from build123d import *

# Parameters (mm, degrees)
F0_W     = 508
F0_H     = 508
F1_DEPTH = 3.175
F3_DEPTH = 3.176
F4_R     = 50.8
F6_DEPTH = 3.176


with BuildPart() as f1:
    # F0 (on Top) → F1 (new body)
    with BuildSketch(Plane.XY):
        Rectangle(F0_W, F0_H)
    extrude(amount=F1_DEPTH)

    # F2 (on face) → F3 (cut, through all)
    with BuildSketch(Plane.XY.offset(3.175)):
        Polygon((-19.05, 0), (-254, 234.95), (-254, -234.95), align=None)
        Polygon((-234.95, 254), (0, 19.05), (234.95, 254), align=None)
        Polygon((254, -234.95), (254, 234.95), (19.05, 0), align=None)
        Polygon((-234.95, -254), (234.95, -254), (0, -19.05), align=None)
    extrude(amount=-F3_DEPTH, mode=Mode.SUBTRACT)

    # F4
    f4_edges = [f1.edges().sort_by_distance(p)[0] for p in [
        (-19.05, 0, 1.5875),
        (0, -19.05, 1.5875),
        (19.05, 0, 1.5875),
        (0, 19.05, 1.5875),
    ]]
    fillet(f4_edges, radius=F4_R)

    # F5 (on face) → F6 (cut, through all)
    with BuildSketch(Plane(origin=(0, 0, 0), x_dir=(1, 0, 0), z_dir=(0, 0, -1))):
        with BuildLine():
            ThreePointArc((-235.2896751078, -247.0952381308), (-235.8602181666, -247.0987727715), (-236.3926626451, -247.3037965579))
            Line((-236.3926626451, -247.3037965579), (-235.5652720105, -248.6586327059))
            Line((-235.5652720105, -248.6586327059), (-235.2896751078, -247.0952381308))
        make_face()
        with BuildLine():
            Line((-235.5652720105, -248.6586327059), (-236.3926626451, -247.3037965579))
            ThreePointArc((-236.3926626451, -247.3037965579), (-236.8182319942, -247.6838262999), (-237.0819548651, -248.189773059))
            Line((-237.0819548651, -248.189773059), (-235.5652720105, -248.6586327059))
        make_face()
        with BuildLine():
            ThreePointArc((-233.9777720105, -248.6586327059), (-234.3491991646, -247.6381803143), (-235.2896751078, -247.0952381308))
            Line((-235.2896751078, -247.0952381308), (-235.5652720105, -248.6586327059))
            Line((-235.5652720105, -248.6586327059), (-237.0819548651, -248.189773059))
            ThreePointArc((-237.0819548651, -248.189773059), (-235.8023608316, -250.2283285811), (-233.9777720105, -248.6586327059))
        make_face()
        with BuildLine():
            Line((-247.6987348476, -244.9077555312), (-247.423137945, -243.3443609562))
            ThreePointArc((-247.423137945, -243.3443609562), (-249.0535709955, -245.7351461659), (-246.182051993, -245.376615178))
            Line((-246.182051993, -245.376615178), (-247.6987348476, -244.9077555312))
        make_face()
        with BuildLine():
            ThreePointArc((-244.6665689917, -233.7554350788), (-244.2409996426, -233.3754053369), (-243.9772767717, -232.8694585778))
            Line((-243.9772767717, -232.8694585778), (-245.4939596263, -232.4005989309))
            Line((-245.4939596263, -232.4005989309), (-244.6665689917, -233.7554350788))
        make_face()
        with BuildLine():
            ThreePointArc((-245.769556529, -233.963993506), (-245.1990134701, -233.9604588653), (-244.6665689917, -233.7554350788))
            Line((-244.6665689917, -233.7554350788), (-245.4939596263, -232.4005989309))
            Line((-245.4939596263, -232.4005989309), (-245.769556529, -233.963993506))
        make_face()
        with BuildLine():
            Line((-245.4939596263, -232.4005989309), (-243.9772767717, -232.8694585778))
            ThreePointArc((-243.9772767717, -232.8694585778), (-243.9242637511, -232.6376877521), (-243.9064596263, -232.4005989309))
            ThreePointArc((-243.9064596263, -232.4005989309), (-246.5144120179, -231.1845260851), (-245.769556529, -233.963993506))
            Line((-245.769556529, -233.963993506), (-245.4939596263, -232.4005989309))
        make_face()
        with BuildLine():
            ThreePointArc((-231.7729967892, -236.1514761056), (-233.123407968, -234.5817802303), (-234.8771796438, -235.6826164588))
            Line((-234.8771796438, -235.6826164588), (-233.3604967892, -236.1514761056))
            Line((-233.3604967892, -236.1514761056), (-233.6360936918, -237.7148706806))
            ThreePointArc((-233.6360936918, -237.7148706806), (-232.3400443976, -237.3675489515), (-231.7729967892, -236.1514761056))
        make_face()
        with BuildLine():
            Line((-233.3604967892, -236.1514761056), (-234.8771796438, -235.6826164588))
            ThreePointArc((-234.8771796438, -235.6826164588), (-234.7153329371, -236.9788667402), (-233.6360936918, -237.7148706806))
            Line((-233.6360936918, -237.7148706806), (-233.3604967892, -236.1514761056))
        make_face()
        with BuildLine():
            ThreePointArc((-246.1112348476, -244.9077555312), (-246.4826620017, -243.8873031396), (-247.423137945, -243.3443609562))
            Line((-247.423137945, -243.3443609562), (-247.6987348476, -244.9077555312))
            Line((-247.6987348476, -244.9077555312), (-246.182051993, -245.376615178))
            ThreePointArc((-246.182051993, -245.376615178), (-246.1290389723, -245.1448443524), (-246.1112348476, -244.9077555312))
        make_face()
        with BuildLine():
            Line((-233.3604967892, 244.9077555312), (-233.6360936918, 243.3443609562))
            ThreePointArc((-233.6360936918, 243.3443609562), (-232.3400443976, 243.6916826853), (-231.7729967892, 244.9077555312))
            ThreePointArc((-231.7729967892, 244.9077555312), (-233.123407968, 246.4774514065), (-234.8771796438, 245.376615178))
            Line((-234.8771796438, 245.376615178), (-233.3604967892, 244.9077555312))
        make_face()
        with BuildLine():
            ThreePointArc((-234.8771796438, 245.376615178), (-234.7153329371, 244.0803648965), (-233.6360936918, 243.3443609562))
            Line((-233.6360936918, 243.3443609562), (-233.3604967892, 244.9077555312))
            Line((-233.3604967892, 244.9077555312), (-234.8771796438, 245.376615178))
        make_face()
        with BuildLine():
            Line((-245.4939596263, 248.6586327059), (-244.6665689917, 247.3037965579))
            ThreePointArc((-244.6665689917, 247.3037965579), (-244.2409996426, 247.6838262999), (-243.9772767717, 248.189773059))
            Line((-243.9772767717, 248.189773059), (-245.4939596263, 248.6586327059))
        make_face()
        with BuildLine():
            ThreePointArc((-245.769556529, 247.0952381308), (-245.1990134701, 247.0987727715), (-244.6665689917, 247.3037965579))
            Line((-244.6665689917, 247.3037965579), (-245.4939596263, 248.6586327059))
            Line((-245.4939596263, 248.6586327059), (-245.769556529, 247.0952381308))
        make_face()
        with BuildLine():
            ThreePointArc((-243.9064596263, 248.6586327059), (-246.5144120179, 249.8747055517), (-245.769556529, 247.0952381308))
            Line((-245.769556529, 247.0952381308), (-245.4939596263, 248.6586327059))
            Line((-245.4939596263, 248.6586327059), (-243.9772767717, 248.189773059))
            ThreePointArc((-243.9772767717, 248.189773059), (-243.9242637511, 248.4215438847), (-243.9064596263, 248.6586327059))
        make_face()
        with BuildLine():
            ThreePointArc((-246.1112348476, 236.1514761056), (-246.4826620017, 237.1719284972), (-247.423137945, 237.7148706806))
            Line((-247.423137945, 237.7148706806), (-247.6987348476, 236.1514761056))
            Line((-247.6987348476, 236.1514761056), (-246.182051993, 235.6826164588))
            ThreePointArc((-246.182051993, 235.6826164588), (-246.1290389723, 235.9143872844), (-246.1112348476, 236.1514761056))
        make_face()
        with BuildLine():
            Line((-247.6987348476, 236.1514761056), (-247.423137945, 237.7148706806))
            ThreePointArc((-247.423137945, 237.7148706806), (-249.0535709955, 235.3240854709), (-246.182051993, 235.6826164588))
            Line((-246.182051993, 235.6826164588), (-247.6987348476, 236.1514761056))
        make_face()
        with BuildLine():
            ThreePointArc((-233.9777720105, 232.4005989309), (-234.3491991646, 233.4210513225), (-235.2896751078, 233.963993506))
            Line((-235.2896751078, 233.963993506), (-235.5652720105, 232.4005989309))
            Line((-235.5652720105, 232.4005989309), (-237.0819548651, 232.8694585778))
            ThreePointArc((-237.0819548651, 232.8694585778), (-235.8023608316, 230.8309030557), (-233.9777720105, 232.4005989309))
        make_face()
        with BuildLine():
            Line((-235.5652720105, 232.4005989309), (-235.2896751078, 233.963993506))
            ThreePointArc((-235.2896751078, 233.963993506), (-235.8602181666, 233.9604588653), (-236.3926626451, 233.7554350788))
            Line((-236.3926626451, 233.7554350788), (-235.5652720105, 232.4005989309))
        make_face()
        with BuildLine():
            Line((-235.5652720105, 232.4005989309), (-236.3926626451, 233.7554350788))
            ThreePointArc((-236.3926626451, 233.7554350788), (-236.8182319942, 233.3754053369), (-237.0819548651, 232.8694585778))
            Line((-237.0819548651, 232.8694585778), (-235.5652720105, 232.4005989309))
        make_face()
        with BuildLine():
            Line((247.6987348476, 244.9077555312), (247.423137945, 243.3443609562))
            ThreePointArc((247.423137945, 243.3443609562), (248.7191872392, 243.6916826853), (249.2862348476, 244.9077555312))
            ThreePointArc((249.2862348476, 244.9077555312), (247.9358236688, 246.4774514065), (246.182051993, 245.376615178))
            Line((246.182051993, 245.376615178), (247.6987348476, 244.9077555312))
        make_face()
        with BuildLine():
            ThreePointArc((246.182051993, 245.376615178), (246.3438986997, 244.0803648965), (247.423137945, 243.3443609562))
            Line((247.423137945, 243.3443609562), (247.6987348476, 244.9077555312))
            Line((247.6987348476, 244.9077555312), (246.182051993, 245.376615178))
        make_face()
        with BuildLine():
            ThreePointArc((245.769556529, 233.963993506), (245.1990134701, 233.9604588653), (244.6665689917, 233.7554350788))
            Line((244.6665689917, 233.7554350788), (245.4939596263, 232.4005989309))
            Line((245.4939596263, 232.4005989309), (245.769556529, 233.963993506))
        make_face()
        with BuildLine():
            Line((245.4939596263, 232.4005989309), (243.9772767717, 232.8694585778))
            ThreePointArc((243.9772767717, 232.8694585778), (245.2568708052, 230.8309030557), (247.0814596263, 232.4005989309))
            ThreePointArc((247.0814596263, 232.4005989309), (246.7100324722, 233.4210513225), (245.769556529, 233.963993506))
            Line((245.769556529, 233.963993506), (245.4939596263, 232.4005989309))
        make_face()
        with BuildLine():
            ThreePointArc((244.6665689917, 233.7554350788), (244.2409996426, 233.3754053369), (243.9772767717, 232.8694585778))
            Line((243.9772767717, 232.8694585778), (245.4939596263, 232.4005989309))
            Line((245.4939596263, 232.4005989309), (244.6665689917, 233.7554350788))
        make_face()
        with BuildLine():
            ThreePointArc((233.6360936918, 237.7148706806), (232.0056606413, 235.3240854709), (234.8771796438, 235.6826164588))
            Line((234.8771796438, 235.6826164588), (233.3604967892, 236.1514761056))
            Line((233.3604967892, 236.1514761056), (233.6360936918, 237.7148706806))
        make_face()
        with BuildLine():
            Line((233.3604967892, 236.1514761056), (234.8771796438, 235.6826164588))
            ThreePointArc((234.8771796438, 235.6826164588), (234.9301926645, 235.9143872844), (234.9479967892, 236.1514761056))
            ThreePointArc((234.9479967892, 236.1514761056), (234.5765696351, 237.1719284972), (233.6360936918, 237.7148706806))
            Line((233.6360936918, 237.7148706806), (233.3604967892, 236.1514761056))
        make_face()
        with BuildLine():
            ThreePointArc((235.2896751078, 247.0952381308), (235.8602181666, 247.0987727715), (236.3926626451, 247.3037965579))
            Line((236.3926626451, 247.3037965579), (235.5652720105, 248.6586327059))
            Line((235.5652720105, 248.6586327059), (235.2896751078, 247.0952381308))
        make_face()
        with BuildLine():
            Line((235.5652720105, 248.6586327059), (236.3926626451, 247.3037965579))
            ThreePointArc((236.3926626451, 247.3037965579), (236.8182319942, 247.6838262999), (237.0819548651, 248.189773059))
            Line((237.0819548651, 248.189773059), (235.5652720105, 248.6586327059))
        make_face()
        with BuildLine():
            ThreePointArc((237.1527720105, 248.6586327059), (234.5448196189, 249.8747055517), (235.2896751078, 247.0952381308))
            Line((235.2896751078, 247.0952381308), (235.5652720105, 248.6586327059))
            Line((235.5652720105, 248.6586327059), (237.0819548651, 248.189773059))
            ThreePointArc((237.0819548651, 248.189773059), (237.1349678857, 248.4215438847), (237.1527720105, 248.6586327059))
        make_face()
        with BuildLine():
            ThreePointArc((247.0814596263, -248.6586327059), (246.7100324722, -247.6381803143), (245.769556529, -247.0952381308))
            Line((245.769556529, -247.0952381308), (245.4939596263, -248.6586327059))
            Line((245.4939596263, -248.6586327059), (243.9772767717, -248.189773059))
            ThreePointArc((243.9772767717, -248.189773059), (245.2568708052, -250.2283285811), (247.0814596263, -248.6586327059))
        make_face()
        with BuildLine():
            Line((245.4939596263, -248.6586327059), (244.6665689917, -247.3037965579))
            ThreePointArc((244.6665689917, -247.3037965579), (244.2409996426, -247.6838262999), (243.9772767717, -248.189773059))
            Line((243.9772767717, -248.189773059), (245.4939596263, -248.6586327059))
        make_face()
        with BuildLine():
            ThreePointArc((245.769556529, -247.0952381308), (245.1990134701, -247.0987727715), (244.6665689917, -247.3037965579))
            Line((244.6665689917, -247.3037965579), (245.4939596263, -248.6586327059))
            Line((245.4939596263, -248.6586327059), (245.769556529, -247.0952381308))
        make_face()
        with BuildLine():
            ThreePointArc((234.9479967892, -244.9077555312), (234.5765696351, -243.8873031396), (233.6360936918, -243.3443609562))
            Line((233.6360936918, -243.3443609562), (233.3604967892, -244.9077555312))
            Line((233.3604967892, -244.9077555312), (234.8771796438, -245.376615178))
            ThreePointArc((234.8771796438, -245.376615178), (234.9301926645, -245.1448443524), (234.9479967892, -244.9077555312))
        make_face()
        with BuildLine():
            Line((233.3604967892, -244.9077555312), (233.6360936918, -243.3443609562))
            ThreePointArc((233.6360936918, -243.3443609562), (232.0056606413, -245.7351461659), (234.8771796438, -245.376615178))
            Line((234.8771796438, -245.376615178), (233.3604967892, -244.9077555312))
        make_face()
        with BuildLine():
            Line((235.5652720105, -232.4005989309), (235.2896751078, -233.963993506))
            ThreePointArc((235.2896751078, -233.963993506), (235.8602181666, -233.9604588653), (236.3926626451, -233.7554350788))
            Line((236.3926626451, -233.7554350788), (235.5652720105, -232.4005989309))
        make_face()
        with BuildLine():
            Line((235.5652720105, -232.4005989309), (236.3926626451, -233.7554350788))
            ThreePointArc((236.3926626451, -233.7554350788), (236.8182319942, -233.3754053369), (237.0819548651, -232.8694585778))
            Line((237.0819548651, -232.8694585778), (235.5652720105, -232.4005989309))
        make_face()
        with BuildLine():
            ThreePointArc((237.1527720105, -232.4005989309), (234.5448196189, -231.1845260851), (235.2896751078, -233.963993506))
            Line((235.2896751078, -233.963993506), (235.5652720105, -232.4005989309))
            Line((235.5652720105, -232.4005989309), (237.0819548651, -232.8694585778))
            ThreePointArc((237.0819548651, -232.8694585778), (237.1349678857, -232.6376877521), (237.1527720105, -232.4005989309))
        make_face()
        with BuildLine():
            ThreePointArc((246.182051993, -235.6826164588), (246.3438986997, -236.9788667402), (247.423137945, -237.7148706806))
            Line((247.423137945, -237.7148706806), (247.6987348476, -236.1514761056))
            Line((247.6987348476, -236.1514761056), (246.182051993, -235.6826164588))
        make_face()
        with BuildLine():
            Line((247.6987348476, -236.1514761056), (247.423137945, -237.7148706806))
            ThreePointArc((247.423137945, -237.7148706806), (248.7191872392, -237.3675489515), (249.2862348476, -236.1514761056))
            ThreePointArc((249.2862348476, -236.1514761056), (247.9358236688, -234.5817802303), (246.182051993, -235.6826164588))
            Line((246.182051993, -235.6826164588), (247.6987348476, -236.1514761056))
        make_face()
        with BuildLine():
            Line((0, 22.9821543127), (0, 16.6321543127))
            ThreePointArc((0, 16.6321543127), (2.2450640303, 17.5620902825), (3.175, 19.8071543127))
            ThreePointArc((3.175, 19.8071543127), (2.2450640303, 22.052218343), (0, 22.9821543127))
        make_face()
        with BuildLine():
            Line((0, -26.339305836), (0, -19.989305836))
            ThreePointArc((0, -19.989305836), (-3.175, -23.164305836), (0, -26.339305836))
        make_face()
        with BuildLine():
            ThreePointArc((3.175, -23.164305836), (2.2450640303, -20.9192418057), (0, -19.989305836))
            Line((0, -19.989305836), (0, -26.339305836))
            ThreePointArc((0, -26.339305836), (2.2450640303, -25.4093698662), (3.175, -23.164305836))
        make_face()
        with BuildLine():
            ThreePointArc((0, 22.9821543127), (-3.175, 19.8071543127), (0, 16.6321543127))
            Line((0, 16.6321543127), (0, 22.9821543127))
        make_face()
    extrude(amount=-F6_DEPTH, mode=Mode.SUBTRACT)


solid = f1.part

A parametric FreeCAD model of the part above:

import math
import FreeCAD as App
import Part
import Sketcher
from FreeCAD import Vector
Q = App.Units.Quantity


def edges_at(feature, points):
    """Names of the edges that pass closest to the given points."""
    edges = feature.Shape.Edges
    near = lambda p: min(range(len(edges)), key=lambda i: edges[i].distToShape(Part.Vertex(*p))[0])
    return sorted({f"Edge{near(p) + 1}" for p in points})


def add_polygon(sketch, points):
    """Adds a closed chain of lines whose ends are joined by coincident constraints."""
    first, n = sketch.GeometryCount, len(points)
    for a, b in zip(points, points[1:] + points[:1]):
        sketch.addGeometry(Part.LineSegment(App.Vector(*a, 0), App.Vector(*b, 0)), False)
    for i in range(n):
        sketch.addConstraint(Sketcher.Constraint("Coincident", first + i, 2, first + (i + 1) % n, 1))

doc = App.newDocument("Part")
body = doc.addObject("PartDesign::Body", "Body")

# Sketch on XY plane
sketch1 = body.newObject("Sketcher::SketchObject", "Sketch")
sketch1.AttachmentSupport = (doc.getObject("XY_Plane"), [""])
sketch1.MapMode = "FlatFace"
add_polygon(sketch1, [(-254, 254), (-254, -254), (254, -254), (254, 254)])  # lines 0-3
sketch1.addConstraint(Sketcher.Constraint("Vertical", 0))
sketch1.addConstraint(Sketcher.Constraint("Horizontal", 1))
sketch1.addConstraint(Sketcher.Constraint("Vertical", 2))
sketch1.addConstraint(Sketcher.Constraint("Horizontal", 3))
sketch1.addConstraint(Sketcher.Constraint("Symmetric", 0, 2, 2, 2, -1, 1))
sketch1.addConstraint(Sketcher.Constraint("Equal", 3, 0))
sketch1.addConstraint(Sketcher.Constraint("DistanceX", 1, 1, 1, 2, Q("20 in")))
pad1 = body.newObject("PartDesign::Pad", "Pad")
pad1.Profile = sketch1
pad1.Length = Q("0.125 in")

# Sketch on XY plane
sketch2 = body.newObject("Sketcher::SketchObject", "Sketch001")
sketch2.AttachmentSupport = (doc.getObject("XY_Plane"), [""])
sketch2.MapMode = "FlatFace"
sketch2.AttachmentOffset = App.Placement(Vector(0, 0, 0.125 * 25.4), App.Rotation())
add_polygon(sketch2, [(-19.05, 0), (-254, 234.95), (-254, -234.95)])  # lines 0-2
add_polygon(sketch2, [(-234.95, 254), (0, 19.05), (234.95, 254)])  # lines 3-5
add_polygon(sketch2, [(254, -234.95), (254, 234.95), (19.05, 0)])  # lines 6-8
add_polygon(sketch2, [(-234.95, -254), (234.95, -254), (0, -19.05)])  # lines 9-11
sketch2.addConstraint(Sketcher.Constraint("Vertical", 1))
sketch2.addConstraint(Sketcher.Constraint("Horizontal", 5))
sketch2.addConstraint(Sketcher.Constraint("Vertical", 6))
sketch2.addConstraint(Sketcher.Constraint("Horizontal", 9))
sketch2.addConstraint(Sketcher.Constraint("Symmetric", 1, 2, 6, 2, -1, 1))
sketch2.addConstraint(Sketcher.Constraint("Symmetric", 2, 2, 7, 2, -1, 1))
sketch2.addConstraint(Sketcher.Constraint("Symmetric", 5, 2, 9, 2, -1, 1))
sketch2.addConstraint(Sketcher.Constraint("Symmetric", 3, 2, 10, 2, -1, 1))
sketch2.addConstraint(Sketcher.Constraint("PointOnObject", 2, 2, -1))
sketch2.addConstraint(Sketcher.Constraint("PointOnObject", 3, 2, -2))
sketch2.addConstraint(Sketcher.Constraint("Perpendicular", 0, 2))
sketch2.addConstraint(Sketcher.Constraint("Perpendicular", 2, 3))
sketch2.addConstraint(Sketcher.Constraint("Perpendicular", 3, 4))
sketch2.addConstraint(Sketcher.Constraint("Perpendicular", 7, 8))
sketch2.addConstraint(Sketcher.Constraint("Perpendicular", 10, 11))
sketch2.addConstraint(Sketcher.Constraint("Horizontal", 0, 2, 6, 2))
sketch2.addConstraint(Sketcher.Constraint("Equal", 9, 1))
sketch2.addConstraint(Sketcher.Constraint("DistanceX", 5, 2, 5, 1, Q("18.5 in")))
sketch2.addConstraint(Sketcher.Constraint("DistanceX", 0, 2, -1, 1, Q("10 in")))
sketch2.addConstraint(Sketcher.Constraint("DistanceY", -1, 1, 4, 2, Q("10 in")))
pocket1 = body.newObject("PartDesign::Pocket", "Pocket")
pocket1.Profile = sketch2
pocket1.Type = "ThroughAll"
doc.recompute()

fillet = body.newObject("PartDesign::Fillet", "Fillet")
fillet.Base = (pocket1, edges_at(pocket1, [
    (-19.05, 0, 1.587),
    (0, -19.05, 1.587),
    (19.05, 0, 1.587),
    (0, 19.05, 1.587),
]))
fillet.Radius = Q("2 in")

# Sketch on XY plane
sketch3 = body.newObject("Sketcher::SketchObject", "Sketch002")
sketch3.AttachmentSupport = (doc.getObject("XY_Plane"), [""])
sketch3.MapMode = "FlatFace"
sketch3.addGeometry(Part.ArcOfCircle(Part.Circle(Vector(-235.565272, 248.658633, 0), Vector(0, 0, 1), 1.5875), math.radians(-121.412172), math.radians(-80.00255)), False)
sketch3.addGeometry(Part.ArcOfCircle(Part.Circle(Vector(-235.565272, 248.658633, 0), Vector(0, 0, 1), 1.5875), math.radians(-162.821794), math.radians(-121.412172)), False)
sketch3.addGeometry(Part.ArcOfCircle(Part.Circle(Vector(-235.565272, 248.658633, 0), Vector(0, 0, 1), 1.5875), math.radians(0), math.radians(197.178206)), False)
sketch3.addGeometry(Part.ArcOfCircle(Part.Circle(Vector(-235.565272, 248.658633, 0), Vector(0, 0, 1), 1.5875), math.radians(-80.00255), math.radians(0)), False)
sketch3.addGeometry(Part.ArcOfCircle(Part.Circle(Vector(-247.698735, 244.907756, 0), Vector(0, 0, 1), 1.5875), math.radians(17.178206), math.radians(279.99745)), False)
sketch3.addGeometry(Part.ArcOfCircle(Part.Circle(Vector(-247.698735, 244.907756, 0), Vector(0, 0, 1), 1.5875), math.radians(0), math.radians(17.178206)), False)
sketch3.addGeometry(Part.ArcOfCircle(Part.Circle(Vector(-247.698735, 244.907756, 0), Vector(0, 0, 1), 1.5875), math.radians(-80.00255), math.radians(0)), False)
sketch3.addGeometry(Part.ArcOfCircle(Part.Circle(Vector(-245.49396, 232.400599, 0), Vector(0, 0, 1), 1.5875), math.radians(17.178206), math.radians(58.587828)), False)
sketch3.addGeometry(Part.ArcOfCircle(Part.Circle(Vector(-245.49396, 232.400599, 0), Vector(0, 0, 1), 1.5875), math.radians(0), math.radians(17.178206)), False)
sketch3.addGeometry(Part.ArcOfCircle(Part.Circle(Vector(-245.49396, 232.400599, 0), Vector(0, 0, 1), 1.5875), math.radians(99.99745), math.radians(360)), False)
sketch3.addGeometry(Part.ArcOfCircle(Part.Circle(Vector(-245.49396, 232.400599, 0), Vector(0, 0, 1), 1.5875), math.radians(58.587828), math.radians(99.99745)), False)
sketch3.addGeometry(Part.ArcOfCircle(Part.Circle(Vector(-233.360497, 236.151476, 0), Vector(0, 0, 1), 1.5875), math.radians(-162.821794), math.radians(0)), False)
sketch3.addGeometry(Part.ArcOfCircle(Part.Circle(Vector(-233.360497, 236.151476, 0), Vector(0, 0, 1), 1.5875), math.radians(99.99745), math.radians(197.178206)), False)
sketch3.addGeometry(Part.ArcOfCircle(Part.Circle(Vector(-233.360497, 236.151476, 0), Vector(0, 0, 1), 1.5875), math.radians(0), math.radians(99.99745)), False)
sketch3.addGeometry(Part.ArcOfCircle(Part.Circle(Vector(-233.360497, -244.907756, 0), Vector(0, 0, 1), 1.5875), math.radians(0), math.radians(99.99745)), False)
sketch3.addGeometry(Part.ArcOfCircle(Part.Circle(Vector(-233.360497, -244.907756, 0), Vector(0, 0, 1), 1.5875), math.radians(-162.821794), math.radians(0)), False)
sketch3.addGeometry(Part.ArcOfCircle(Part.Circle(Vector(-233.360497, -244.907756, 0), Vector(0, 0, 1), 1.5875), math.radians(99.99745), math.radians(197.178206)), False)
sketch3.addGeometry(Part.ArcOfCircle(Part.Circle(Vector(-245.49396, -248.658633, 0), Vector(0, 0, 1), 1.5875), math.radians(17.178206), math.radians(58.587828)), False)
sketch3.addGeometry(Part.ArcOfCircle(Part.Circle(Vector(-245.49396, -248.658633, 0), Vector(0, 0, 1), 1.5875), math.radians(0), math.radians(17.178206)), False)
sketch3.addGeometry(Part.ArcOfCircle(Part.Circle(Vector(-245.49396, -248.658633, 0), Vector(0, 0, 1), 1.5875), math.radians(99.99745), math.radians(360)), False)
sketch3.addGeometry(Part.ArcOfCircle(Part.Circle(Vector(-245.49396, -248.658633, 0), Vector(0, 0, 1), 1.5875), math.radians(58.587828), math.radians(99.99745)), False)
sketch3.addGeometry(Part.ArcOfCircle(Part.Circle(Vector(-247.698735, -236.151476, 0), Vector(0, 0, 1), 1.5875), math.radians(-80.00255), math.radians(0)), False)
sketch3.addGeometry(Part.ArcOfCircle(Part.Circle(Vector(-247.698735, -236.151476, 0), Vector(0, 0, 1), 1.5875), math.radians(17.178206), math.radians(279.99745)), False)
sketch3.addGeometry(Part.ArcOfCircle(Part.Circle(Vector(-247.698735, -236.151476, 0), Vector(0, 0, 1), 1.5875), math.radians(0), math.radians(17.178206)), False)
sketch3.addGeometry(Part.ArcOfCircle(Part.Circle(Vector(-235.565272, -232.400599, 0), Vector(0, 0, 1), 1.5875), math.radians(-80.00255), math.radians(0)), False)
sketch3.addGeometry(Part.ArcOfCircle(Part.Circle(Vector(-235.565272, -232.400599, 0), Vector(0, 0, 1), 1.5875), math.radians(-121.412172), math.radians(-80.00255)), False)
sketch3.addGeometry(Part.ArcOfCircle(Part.Circle(Vector(-235.565272, -232.400599, 0), Vector(0, 0, 1), 1.5875), math.radians(-162.821794), math.radians(-121.412172)), False)
sketch3.addGeometry(Part.ArcOfCircle(Part.Circle(Vector(-235.565272, -232.400599, 0), Vector(0, 0, 1), 1.5875), math.radians(0), math.radians(197.178206)), False)
sketch3.addGeometry(Part.ArcOfCircle(Part.Circle(Vector(247.698735, -244.907756, 0), Vector(0, 0, 1), 1.5875), math.radians(0), math.radians(99.99745)), False)
sketch3.addGeometry(Part.ArcOfCircle(Part.Circle(Vector(247.698735, -244.907756, 0), Vector(0, 0, 1), 1.5875), math.radians(-162.821794), math.radians(0)), False)
sketch3.addGeometry(Part.ArcOfCircle(Part.Circle(Vector(247.698735, -244.907756, 0), Vector(0, 0, 1), 1.5875), math.radians(99.99745), math.radians(197.178206)), False)
sketch3.addGeometry(Part.ArcOfCircle(Part.Circle(Vector(245.49396, -232.400599, 0), Vector(0, 0, 1), 1.5875), math.radians(-121.412172), math.radians(-80.00255)), False)
sketch3.addGeometry(Part.ArcOfCircle(Part.Circle(Vector(245.49396, -232.400599, 0), Vector(0, 0, 1), 1.5875), math.radians(-162.821794), math.radians(-121.412172)), False)
sketch3.addGeometry(Part.ArcOfCircle(Part.Circle(Vector(245.49396, -232.400599, 0), Vector(0, 0, 1), 1.5875), math.radians(0), math.radians(197.178206)), False)
sketch3.addGeometry(Part.ArcOfCircle(Part.Circle(Vector(245.49396, -232.400599, 0), Vector(0, 0, 1), 1.5875), math.radians(-80.00255), math.radians(0)), False)
sketch3.addGeometry(Part.ArcOfCircle(Part.Circle(Vector(233.360497, -236.151476, 0), Vector(0, 0, 1), 1.5875), math.radians(17.178206), math.radians(279.99745)), False)
sketch3.addGeometry(Part.ArcOfCircle(Part.Circle(Vector(233.360497, -236.151476, 0), Vector(0, 0, 1), 1.5875), math.radians(0), math.radians(17.178206)), False)
sketch3.addGeometry(Part.ArcOfCircle(Part.Circle(Vector(233.360497, -236.151476, 0), Vector(0, 0, 1), 1.5875), math.radians(-80.00255), math.radians(0)), False)
sketch3.addGeometry(Part.ArcOfCircle(Part.Circle(Vector(235.565272, -248.658633, 0), Vector(0, 0, 1), 1.5875), math.radians(58.587828), math.radians(99.99745)), False)
sketch3.addGeometry(Part.ArcOfCircle(Part.Circle(Vector(235.565272, -248.658633, 0), Vector(0, 0, 1), 1.5875), math.radians(17.178206), math.radians(58.587828)), False)
sketch3.addGeometry(Part.ArcOfCircle(Part.Circle(Vector(235.565272, -248.658633, 0), Vector(0, 0, 1), 1.5875), math.radians(0), math.radians(17.178206)), False)
sketch3.addGeometry(Part.ArcOfCircle(Part.Circle(Vector(235.565272, -248.658633, 0), Vector(0, 0, 1), 1.5875), math.radians(99.99745), math.radians(360)), False)
sketch3.addGeometry(Part.ArcOfCircle(Part.Circle(Vector(245.49396, 248.658633, 0), Vector(0, 0, 1), 1.5875), math.radians(-80.00255), math.radians(0)), False)
sketch3.addGeometry(Part.ArcOfCircle(Part.Circle(Vector(245.49396, 248.658633, 0), Vector(0, 0, 1), 1.5875), math.radians(-121.412172), math.radians(-80.00255)), False)
sketch3.addGeometry(Part.ArcOfCircle(Part.Circle(Vector(245.49396, 248.658633, 0), Vector(0, 0, 1), 1.5875), math.radians(-162.821794), math.radians(-121.412172)), False)
sketch3.addGeometry(Part.ArcOfCircle(Part.Circle(Vector(245.49396, 248.658633, 0), Vector(0, 0, 1), 1.5875), math.radians(0), math.radians(197.178206)), False)
sketch3.addGeometry(Part.ArcOfCircle(Part.Circle(Vector(233.360497, 244.907756, 0), Vector(0, 0, 1), 1.5875), math.radians(-80.00255), math.radians(0)), False)
sketch3.addGeometry(Part.ArcOfCircle(Part.Circle(Vector(233.360497, 244.907756, 0), Vector(0, 0, 1), 1.5875), math.radians(17.178206), math.radians(279.99745)), False)
sketch3.addGeometry(Part.ArcOfCircle(Part.Circle(Vector(233.360497, 244.907756, 0), Vector(0, 0, 1), 1.5875), math.radians(0), math.radians(17.178206)), False)
sketch3.addGeometry(Part.ArcOfCircle(Part.Circle(Vector(235.565272, 232.400599, 0), Vector(0, 0, 1), 1.5875), math.radians(58.587828), math.radians(99.99745)), False)
sketch3.addGeometry(Part.ArcOfCircle(Part.Circle(Vector(235.565272, 232.400599, 0), Vector(0, 0, 1), 1.5875), math.radians(17.178206), math.radians(58.587828)), False)
sketch3.addGeometry(Part.ArcOfCircle(Part.Circle(Vector(235.565272, 232.400599, 0), Vector(0, 0, 1), 1.5875), math.radians(0), math.radians(17.178206)), False)
sketch3.addGeometry(Part.ArcOfCircle(Part.Circle(Vector(235.565272, 232.400599, 0), Vector(0, 0, 1), 1.5875), math.radians(99.99745), math.radians(360)), False)
sketch3.addGeometry(Part.ArcOfCircle(Part.Circle(Vector(247.698735, 236.151476, 0), Vector(0, 0, 1), 1.5875), math.radians(99.99745), math.radians(197.178206)), False)
sketch3.addGeometry(Part.ArcOfCircle(Part.Circle(Vector(247.698735, 236.151476, 0), Vector(0, 0, 1), 1.5875), math.radians(0), math.radians(99.99745)), False)
sketch3.addGeometry(Part.ArcOfCircle(Part.Circle(Vector(247.698735, 236.151476, 0), Vector(0, 0, 1), 1.5875), math.radians(-162.821794), math.radians(0)), False)
sketch3.addGeometry(Part.ArcOfCircle(Part.Circle(Vector(0, -19.807154, 0), Vector(0, 0, 1), 3.175), math.radians(0), math.radians(90)), False)
sketch3.addGeometry(Part.ArcOfCircle(Part.Circle(Vector(0, -19.807154, 0), Vector(0, 0, 1), 3.175), math.radians(-90), math.radians(0)), False)
sketch3.addGeometry(Part.ArcOfCircle(Part.Circle(Vector(0, -19.807154, 0), Vector(0, 0, 1), 3.175), math.radians(90), math.radians(270)), False)
sketch3.addGeometry(Part.ArcOfCircle(Part.Circle(Vector(0, 23.164306, 0), Vector(0, 0, 1), 3.175), math.radians(90), math.radians(270)), False)
sketch3.addGeometry(Part.ArcOfCircle(Part.Circle(Vector(0, 23.164306, 0), Vector(0, 0, 1), 3.175), math.radians(0), math.radians(90)), False)
sketch3.addGeometry(Part.ArcOfCircle(Part.Circle(Vector(0, 23.164306, 0), Vector(0, 0, 1), 3.175), math.radians(-90), math.radians(0)), False)
sketch3.addConstraint(Sketcher.Constraint("Tangent", 0, 1, 1, 2))
sketch3.addConstraint(Sketcher.Constraint("Tangent", 1, 1, 2, 2))
sketch3.addConstraint(Sketcher.Constraint("Tangent", 2, 1, 3, 2))
sketch3.addConstraint(Sketcher.Constraint("Tangent", 3, 1, 0, 2))
sketch3.addConstraint(Sketcher.Constraint("Tangent", 4, 1, 5, 2))
sketch3.addConstraint(Sketcher.Constraint("Tangent", 5, 1, 6, 2))
sketch3.addConstraint(Sketcher.Constraint("Tangent", 6, 1, 4, 2))
sketch3.addConstraint(Sketcher.Constraint("Tangent", 7, 1, 8, 2))
sketch3.addConstraint(Sketcher.Constraint("Tangent", 8, 1, 9, 2))
sketch3.addConstraint(Sketcher.Constraint("Tangent", 9, 1, 10, 2))
sketch3.addConstraint(Sketcher.Constraint("Tangent", 10, 1, 7, 2))
sketch3.addConstraint(Sketcher.Constraint("Tangent", 11, 1, 12, 2))
sketch3.addConstraint(Sketcher.Constraint("Tangent", 12, 1, 13, 2))
sketch3.addConstraint(Sketcher.Constraint("Tangent", 13, 1, 11, 2))
sketch3.addConstraint(Sketcher.Constraint("Tangent", 14, 1, 15, 2))
sketch3.addConstraint(Sketcher.Constraint("Tangent", 15, 1, 16, 2))
sketch3.addConstraint(Sketcher.Constraint("Tangent", 16, 1, 14, 2))
sketch3.addConstraint(Sketcher.Constraint("Tangent", 17, 1, 18, 2))
sketch3.addConstraint(Sketcher.Constraint("Tangent", 18, 1, 19, 2))
sketch3.addConstraint(Sketcher.Constraint("Tangent", 19, 1, 20, 2))
sketch3.addConstraint(Sketcher.Constraint("Tangent", 20, 1, 17, 2))
sketch3.addConstraint(Sketcher.Constraint("Tangent", 21, 1, 22, 2))
sketch3.addConstraint(Sketcher.Constraint("Tangent", 22, 1, 23, 2))
sketch3.addConstraint(Sketcher.Constraint("Tangent", 23, 1, 21, 2))
sketch3.addConstraint(Sketcher.Constraint("Tangent", 24, 1, 25, 2))
sketch3.addConstraint(Sketcher.Constraint("Tangent", 25, 1, 26, 2))
sketch3.addConstraint(Sketcher.Constraint("Tangent", 26, 1, 27, 2))
sketch3.addConstraint(Sketcher.Constraint("Tangent", 27, 1, 24, 2))
sketch3.addConstraint(Sketcher.Constraint("Tangent", 28, 1, 29, 2))
sketch3.addConstraint(Sketcher.Constraint("Tangent", 29, 1, 30, 2))
sketch3.addConstraint(Sketcher.Constraint("Tangent", 30, 1, 28, 2))
sketch3.addConstraint(Sketcher.Constraint("Tangent", 31, 1, 32, 2))
sketch3.addConstraint(Sketcher.Constraint("Tangent", 32, 1, 33, 2))
sketch3.addConstraint(Sketcher.Constraint("Tangent", 33, 1, 34, 2))
sketch3.addConstraint(Sketcher.Constraint("Tangent", 34, 1, 31, 2))
sketch3.addConstraint(Sketcher.Constraint("Tangent", 35, 1, 36, 2))
sketch3.addConstraint(Sketcher.Constraint("Tangent", 36, 1, 37, 2))
sketch3.addConstraint(Sketcher.Constraint("Tangent", 37, 1, 35, 2))
sketch3.addConstraint(Sketcher.Constraint("Tangent", 38, 1, 39, 2))
sketch3.addConstraint(Sketcher.Constraint("Tangent", 39, 1, 40, 2))
sketch3.addConstraint(Sketcher.Constraint("Tangent", 40, 1, 41, 2))
sketch3.addConstraint(Sketcher.Constraint("Tangent", 41, 1, 38, 2))
sketch3.addConstraint(Sketcher.Constraint("Tangent", 42, 1, 43, 2))
sketch3.addConstraint(Sketcher.Constraint("Tangent", 43, 1, 44, 2))
sketch3.addConstraint(Sketcher.Constraint("Tangent", 44, 1, 45, 2))
sketch3.addConstraint(Sketcher.Constraint("Tangent", 45, 1, 42, 2))
sketch3.addConstraint(Sketcher.Constraint("Tangent", 46, 1, 47, 2))
sketch3.addConstraint(Sketcher.Constraint("Tangent", 47, 1, 48, 2))
sketch3.addConstraint(Sketcher.Constraint("Tangent", 48, 1, 46, 2))
sketch3.addConstraint(Sketcher.Constraint("Tangent", 49, 1, 50, 2))
sketch3.addConstraint(Sketcher.Constraint("Tangent", 50, 1, 51, 2))
sketch3.addConstraint(Sketcher.Constraint("Tangent", 51, 1, 52, 2))
sketch3.addConstraint(Sketcher.Constraint("Tangent", 52, 1, 49, 2))
sketch3.addConstraint(Sketcher.Constraint("Tangent", 53, 1, 54, 2))
sketch3.addConstraint(Sketcher.Constraint("Tangent", 54, 1, 55, 2))
sketch3.addConstraint(Sketcher.Constraint("Tangent", 55, 1, 53, 2))
sketch3.addConstraint(Sketcher.Constraint("Tangent", 56, 1, 57, 2))
sketch3.addConstraint(Sketcher.Constraint("Tangent", 57, 1, 58, 2))
sketch3.addConstraint(Sketcher.Constraint("Tangent", 58, 1, 56, 2))
sketch3.addConstraint(Sketcher.Constraint("Tangent", 59, 1, 60, 2))
sketch3.addConstraint(Sketcher.Constraint("Tangent", 60, 1, 61, 2))
sketch3.addConstraint(Sketcher.Constraint("Tangent", 61, 1, 59, 2))
sketch3.addConstraint(Sketcher.Constraint("Equal", 0, 1))
sketch3.addConstraint(Sketcher.Constraint("Equal", 3, 4))
sketch3.addConstraint(Sketcher.Constraint("Equal", 6, 7))
sketch3.addConstraint(Sketcher.Constraint("Equal", 7, 8))
sketch3.addConstraint(Sketcher.Constraint("Equal", 10, 11))
sketch3.addConstraint(Sketcher.Constraint("Equal", 13, 14))
sketch3.addConstraint(Sketcher.Constraint("Equal", 16, 17))
sketch3.addConstraint(Sketcher.Constraint("Equal", 17, 18))
sketch3.addConstraint(Sketcher.Constraint("Equal", 20, 21))
sketch3.addConstraint(Sketcher.Constraint("Equal", 23, 24))
sketch3.addConstraint(Sketcher.Constraint("Equal", 24, 25))
sketch3.addConstraint(Sketcher.Constraint("Equal", 27, 28))
sketch3.addConstraint(Sketcher.Constraint("Equal", 30, 31))
sketch3.addConstraint(Sketcher.Constraint("Equal", 31, 32))
sketch3.addConstraint(Sketcher.Constraint("Equal", 34, 35))
sketch3.addConstraint(Sketcher.Constraint("Equal", 37, 38))
sketch3.addConstraint(Sketcher.Constraint("Equal", 38, 39))
sketch3.addConstraint(Sketcher.Constraint("Equal", 41, 42))
sketch3.addConstraint(Sketcher.Constraint("Equal", 42, 43))
sketch3.addConstraint(Sketcher.Constraint("Equal", 45, 46))
sketch3.addConstraint(Sketcher.Constraint("Equal", 48, 49))
sketch3.addConstraint(Sketcher.Constraint("Equal", 49, 50))
sketch3.addConstraint(Sketcher.Constraint("Equal", 52, 53))
sketch3.addConstraint(Sketcher.Constraint("Equal", 58, 59))
sketch3.addConstraint(Sketcher.Constraint("Symmetric", 4, 3, 28, 3, -1, 1))
sketch3.addConstraint(Sketcher.Constraint("Symmetric", 7, 3, 31, 3, -1, 1))
sketch3.addConstraint(Sketcher.Constraint("Symmetric", 11, 3, 35, 3, -1, 1))
sketch3.addConstraint(Sketcher.Constraint("Symmetric", 0, 3, 38, 3, -1, 1))
sketch3.addConstraint(Sketcher.Constraint("Symmetric", 17, 3, 42, 3, -1, 1))
sketch3.addConstraint(Sketcher.Constraint("Symmetric", 14, 3, 46, 3, -1, 1))
sketch3.addConstraint(Sketcher.Constraint("Symmetric", 24, 3, 49, 3, -1, 1))
sketch3.addConstraint(Sketcher.Constraint("Symmetric", 21, 3, 53, 3, -1, 1))
sketch3.addConstraint(Sketcher.Constraint("PointOnObject", 56, 3, -2))
sketch3.addConstraint(Sketcher.Constraint("PointOnObject", 59, 3, -2))
sketch3.addConstraint(Sketcher.Constraint("PointOnObject", 57, 1, -2))
sketch3.addConstraint(Sketcher.Constraint("PointOnObject", 58, 1, -2))
sketch3.addConstraint(Sketcher.Constraint("PointOnObject", 59, 1, -2))
sketch3.addConstraint(Sketcher.Constraint("PointOnObject", 61, 1, -2))
sketch3.addConstraint(Sketcher.Constraint("Horizontal", 16, 3, 28, 3))
sketch3.addConstraint(Sketcher.Constraint("Horizontal", 27, 3, 31, 3))
sketch3.addConstraint(Sketcher.Constraint("Horizontal", 23, 3, 35, 3))
sketch3.addConstraint(Sketcher.Constraint("Horizontal", 20, 3, 38, 3))
sketch3.addConstraint(Sketcher.Constraint("Horizontal", 45, 3, 2, 1))
sketch3.addConstraint(Sketcher.Constraint("Horizontal", 48, 3, 5, 1))
sketch3.addConstraint(Sketcher.Constraint("Horizontal", 52, 3, 8, 1))
sketch3.addConstraint(Sketcher.Constraint("Horizontal", 55, 3, 13, 1))
sketch3.addConstraint(Sketcher.Constraint("Horizontal", 30, 3, 14, 1))
sketch3.addConstraint(Sketcher.Constraint("Horizontal", 41, 3, 18, 1))
sketch3.addConstraint(Sketcher.Constraint("Horizontal", 37, 3, 23, 1))
sketch3.addConstraint(Sketcher.Constraint("Horizontal", 34, 3, 27, 1))
sketch3.addConstraint(Sketcher.Constraint("Horizontal", 14, 1, 28, 1))
sketch3.addConstraint(Sketcher.Constraint("Horizontal", 15, 1, 29, 1))
sketch3.addConstraint(Sketcher.Constraint("Horizontal", 16, 1, 30, 1))
sketch3.addConstraint(Sketcher.Constraint("Horizontal", 25, 1, 31, 1))
sketch3.addConstraint(Sketcher.Constraint("Horizontal", 26, 1, 32, 1))
sketch3.addConstraint(Sketcher.Constraint("Horizontal", 27, 1, 33, 1))
sketch3.addConstraint(Sketcher.Constraint("Horizontal", 24, 1, 34, 1))
sketch3.addConstraint(Sketcher.Constraint("Horizontal", 22, 1, 35, 1))
sketch3.addConstraint(Sketcher.Constraint("Horizontal", 23, 1, 36, 1))
sketch3.addConstraint(Sketcher.Constraint("Horizontal", 21, 1, 37, 1))
sketch3.addConstraint(Sketcher.Constraint("Horizontal", 20, 1, 38, 1))
sketch3.addConstraint(Sketcher.Constraint("Horizontal", 17, 1, 39, 1))
sketch3.addConstraint(Sketcher.Constraint("Horizontal", 18, 1, 40, 1))
sketch3.addConstraint(Sketcher.Constraint("Horizontal", 19, 1, 41, 1))
sketch3.addConstraint(Sketcher.Constraint("Horizontal", 3, 1, 42, 1))
sketch3.addConstraint(Sketcher.Constraint("Horizontal", 0, 1, 43, 1))
sketch3.addConstraint(Sketcher.Constraint("Horizontal", 1, 1, 44, 1))
sketch3.addConstraint(Sketcher.Constraint("Horizontal", 2, 1, 45, 1))
sketch3.addConstraint(Sketcher.Constraint("Horizontal", 6, 1, 46, 1))
sketch3.addConstraint(Sketcher.Constraint("Horizontal", 4, 1, 47, 1))
sketch3.addConstraint(Sketcher.Constraint("Horizontal", 5, 1, 48, 1))
sketch3.addConstraint(Sketcher.Constraint("Horizontal", 10, 1, 49, 1))
sketch3.addConstraint(Sketcher.Constraint("Horizontal", 7, 1, 50, 1))
sketch3.addConstraint(Sketcher.Constraint("Horizontal", 8, 1, 51, 1))
sketch3.addConstraint(Sketcher.Constraint("Horizontal", 9, 1, 52, 1))
sketch3.addConstraint(Sketcher.Constraint("Horizontal", 12, 1, 53, 1))
sketch3.addConstraint(Sketcher.Constraint("Horizontal", 13, 1, 54, 1))
sketch3.addConstraint(Sketcher.Constraint("Horizontal", 11, 1, 55, 1))
sketch3.addConstraint(Sketcher.Constraint("Horizontal", 58, 3, 56, 1))
sketch3.addConstraint(Sketcher.Constraint("Horizontal", 61, 3, 60, 1))
sketch3.addConstraint(Sketcher.Constraint("Vertical", 13, 3, 14, 3))
sketch3.addConstraint(Sketcher.Constraint("Vertical", 10, 3, 17, 3))
sketch3.addConstraint(Sketcher.Constraint("Vertical", 6, 3, 21, 3))
sketch3.addConstraint(Sketcher.Constraint("Vertical", 3, 3, 24, 3))
sketch3.addConstraint(Sketcher.Constraint("Vertical", 11, 1, 15, 1))
sketch3.addConstraint(Sketcher.Constraint("Vertical", 12, 1, 16, 1))
sketch3.addConstraint(Sketcher.Constraint("Vertical", 7, 1, 17, 1))
sketch3.addConstraint(Sketcher.Constraint("Vertical", 9, 1, 19, 1))
sketch3.addConstraint(Sketcher.Constraint("Vertical", 10, 1, 20, 1))
sketch3.addConstraint(Sketcher.Constraint("Vertical", 6, 1, 21, 1))
sketch3.addConstraint(Sketcher.Constraint("Vertical", 4, 1, 22, 1))
sketch3.addConstraint(Sketcher.Constraint("Vertical", 3, 1, 24, 1))
sketch3.addConstraint(Sketcher.Constraint("Vertical", 0, 1, 25, 1))
sketch3.addConstraint(Sketcher.Constraint("Vertical", 1, 1, 26, 1))
sketch3.addConstraint(Sketcher.Constraint("Radius", 0, Q("0.0625 in")))
sketch3.addConstraint(Sketcher.Constraint("Radius", 56, Q("0.125 in")))
sketch3.addConstraint(Sketcher.Constraint("DistanceY", -1, 1, 7, 3, 232.400599))
sketch3.addConstraint(Sketcher.Constraint("DistanceX", 7, 3, -1, 1, 245.49396))
sketch3.addConstraint(Sketcher.Constraint("DistanceY", -1, 1, 3, 1, 247.095238))
sketch3.addConstraint(Sketcher.Constraint("DistanceX", 4, 1, -1, 1, 246.182052))
sketch3.addConstraint(Sketcher.Constraint("DistanceY", -1, 1, 6, 1, 243.344361))
sketch3.addConstraint(Sketcher.Constraint("DistanceY", -1, 1, 7, 1, 232.869459))
sketch3.addConstraint(Sketcher.Constraint("DistanceX", 10, 1, -1, 1, 244.666569))
sketch3.addConstraint(Sketcher.Constraint("DistanceX", 11, 1, -1, 1, 234.87718))
sketch3.addConstraint(Sketcher.Constraint("DistanceY", -1, 1, 12, 1, 237.714871))
sketch3.addConstraint(Sketcher.Constraint("DistanceY", 16, 1, -1, 1, 243.344361))
sketch3.addConstraint(Sketcher.Constraint("DistanceY", 19, 1, -1, 1, 247.095238))
sketch3.addConstraint(Sketcher.Constraint("DistanceY", 26, 1, -1, 1, 232.869459))
sketch3.addConstraint(Sketcher.Constraint("DistanceX", -1, 1, 29, 1, 246.182052))
sketch3.addConstraint(Sketcher.Constraint("DistanceX", -1, 1, 31, 1, 244.666569))
sketch3.addConstraint(Sketcher.Constraint("DistanceX", 0, 3, -1, 1, 235.565272))
sketch3.addConstraint(Sketcher.Constraint("DistanceY", -1, 1, 0, 3, 248.658633))
sketch3.addConstraint(Sketcher.Constraint("DistanceX", 4, 3, -1, 1, 247.698735))
sketch3.addConstraint(Sketcher.Constraint("DistanceY", -1, 1, 4, 3, 244.907756))
sketch3.addConstraint(Sketcher.Constraint("DistanceY", 56, 3, -1, 1, 19.807154))
sketch3.addConstraint(Sketcher.Constraint("DistanceY", -1, 1, 59, 3, 23.164306))
pocket2 = body.newObject("PartDesign::Pocket", "Pocket001")
pocket2.Profile = sketch3
pocket2.Type = "ThroughAll"
pocket2.Reversed = True

doc.recompute()
